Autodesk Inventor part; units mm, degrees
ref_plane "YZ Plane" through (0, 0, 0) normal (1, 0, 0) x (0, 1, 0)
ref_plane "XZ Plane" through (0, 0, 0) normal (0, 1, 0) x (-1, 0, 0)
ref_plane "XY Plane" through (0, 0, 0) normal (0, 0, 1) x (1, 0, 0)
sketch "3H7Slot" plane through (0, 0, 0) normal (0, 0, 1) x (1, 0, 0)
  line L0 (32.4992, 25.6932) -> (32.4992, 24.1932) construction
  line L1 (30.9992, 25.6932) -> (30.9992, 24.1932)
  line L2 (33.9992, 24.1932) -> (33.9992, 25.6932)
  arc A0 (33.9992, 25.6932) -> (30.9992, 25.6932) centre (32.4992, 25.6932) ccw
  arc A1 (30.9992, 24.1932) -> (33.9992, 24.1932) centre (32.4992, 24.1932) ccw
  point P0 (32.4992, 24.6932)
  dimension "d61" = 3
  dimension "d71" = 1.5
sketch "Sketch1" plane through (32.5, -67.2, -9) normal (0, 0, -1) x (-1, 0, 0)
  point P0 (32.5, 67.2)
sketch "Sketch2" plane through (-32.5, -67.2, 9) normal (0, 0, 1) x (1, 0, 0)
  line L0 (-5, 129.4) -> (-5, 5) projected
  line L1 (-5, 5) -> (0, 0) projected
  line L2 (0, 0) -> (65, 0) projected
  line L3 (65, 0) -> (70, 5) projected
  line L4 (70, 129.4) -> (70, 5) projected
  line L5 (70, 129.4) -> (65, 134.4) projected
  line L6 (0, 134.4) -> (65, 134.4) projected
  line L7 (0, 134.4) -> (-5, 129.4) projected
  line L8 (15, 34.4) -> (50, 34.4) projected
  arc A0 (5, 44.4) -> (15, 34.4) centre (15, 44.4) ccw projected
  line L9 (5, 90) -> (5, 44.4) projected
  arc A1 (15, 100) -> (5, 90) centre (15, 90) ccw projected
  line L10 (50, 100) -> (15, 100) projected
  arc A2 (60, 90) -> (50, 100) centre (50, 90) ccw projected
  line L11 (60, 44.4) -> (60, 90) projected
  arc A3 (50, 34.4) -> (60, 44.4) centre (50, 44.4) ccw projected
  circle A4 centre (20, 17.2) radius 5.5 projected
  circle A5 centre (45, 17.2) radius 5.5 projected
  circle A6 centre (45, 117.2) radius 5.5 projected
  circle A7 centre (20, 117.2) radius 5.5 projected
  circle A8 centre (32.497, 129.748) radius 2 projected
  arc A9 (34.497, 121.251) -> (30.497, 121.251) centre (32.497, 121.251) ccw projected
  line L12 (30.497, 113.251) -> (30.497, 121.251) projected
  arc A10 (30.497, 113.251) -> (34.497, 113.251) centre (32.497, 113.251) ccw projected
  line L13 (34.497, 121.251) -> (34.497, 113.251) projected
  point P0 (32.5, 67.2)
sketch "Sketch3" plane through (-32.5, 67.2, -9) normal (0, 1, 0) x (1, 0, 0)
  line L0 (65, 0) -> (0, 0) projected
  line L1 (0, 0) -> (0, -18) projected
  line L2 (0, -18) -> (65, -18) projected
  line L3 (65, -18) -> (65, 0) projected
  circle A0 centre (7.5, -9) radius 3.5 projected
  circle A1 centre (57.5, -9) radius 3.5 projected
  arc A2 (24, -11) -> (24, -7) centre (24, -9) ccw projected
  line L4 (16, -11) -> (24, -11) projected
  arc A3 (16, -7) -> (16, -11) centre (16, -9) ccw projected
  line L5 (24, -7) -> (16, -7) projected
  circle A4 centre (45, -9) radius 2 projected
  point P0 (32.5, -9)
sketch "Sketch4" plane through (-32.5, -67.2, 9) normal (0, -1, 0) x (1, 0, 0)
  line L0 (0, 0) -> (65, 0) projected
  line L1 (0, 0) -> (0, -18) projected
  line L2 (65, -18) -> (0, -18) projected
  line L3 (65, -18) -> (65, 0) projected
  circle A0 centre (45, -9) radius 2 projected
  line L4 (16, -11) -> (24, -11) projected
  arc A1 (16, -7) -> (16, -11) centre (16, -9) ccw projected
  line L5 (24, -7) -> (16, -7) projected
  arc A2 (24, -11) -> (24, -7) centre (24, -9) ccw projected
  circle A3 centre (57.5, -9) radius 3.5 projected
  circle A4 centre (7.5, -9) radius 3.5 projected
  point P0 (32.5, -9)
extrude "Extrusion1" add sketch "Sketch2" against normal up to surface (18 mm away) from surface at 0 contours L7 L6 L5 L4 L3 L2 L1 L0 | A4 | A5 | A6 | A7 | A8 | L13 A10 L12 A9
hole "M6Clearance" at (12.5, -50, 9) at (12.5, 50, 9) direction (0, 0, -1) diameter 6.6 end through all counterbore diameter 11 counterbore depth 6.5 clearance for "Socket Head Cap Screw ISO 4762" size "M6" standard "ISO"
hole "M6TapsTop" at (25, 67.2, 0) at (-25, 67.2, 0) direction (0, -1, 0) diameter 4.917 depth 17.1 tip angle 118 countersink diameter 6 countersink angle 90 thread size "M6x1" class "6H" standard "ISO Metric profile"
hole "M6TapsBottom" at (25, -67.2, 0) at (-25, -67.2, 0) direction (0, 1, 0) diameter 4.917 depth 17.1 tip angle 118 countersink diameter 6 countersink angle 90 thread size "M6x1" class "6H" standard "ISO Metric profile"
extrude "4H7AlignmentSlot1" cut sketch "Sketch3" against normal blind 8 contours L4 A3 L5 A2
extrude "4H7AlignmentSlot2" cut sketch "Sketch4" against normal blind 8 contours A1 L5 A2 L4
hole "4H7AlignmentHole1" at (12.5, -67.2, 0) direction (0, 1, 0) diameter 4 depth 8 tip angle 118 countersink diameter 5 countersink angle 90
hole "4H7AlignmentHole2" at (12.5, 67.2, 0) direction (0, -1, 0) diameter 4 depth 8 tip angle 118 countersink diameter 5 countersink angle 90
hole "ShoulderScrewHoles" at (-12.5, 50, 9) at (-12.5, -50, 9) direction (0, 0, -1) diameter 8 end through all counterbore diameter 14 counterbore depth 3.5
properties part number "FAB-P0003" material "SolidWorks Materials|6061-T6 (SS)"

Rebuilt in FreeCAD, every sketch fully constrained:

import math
import FreeCAD as App
import Part
import Sketcher
from FreeCAD import Vector


def add_polygon(sketch, points):
    """Adds a closed chain of lines whose ends are joined by coincident constraints."""
    first, n = sketch.GeometryCount, len(points)
    for a, b in zip(points, points[1:] + points[:1]):
        sketch.addGeometry(Part.LineSegment(App.Vector(*a, 0), App.Vector(*b, 0)), False)
    for i in range(n):
        sketch.addConstraint(Sketcher.Constraint("Coincident", first + i, 2, first + (i + 1) % n, 1))

doc = App.newDocument("Part")
params = doc.addObject("Spreadsheet::Sheet", "Params")
for row, (alias, value) in enumerate([
    ("sketch1_radius", "10 mm"),
    ("sketch1_width", "65 mm"),
    ("sketch1_width2", "35 mm"),
    ("sketch1_height", "124.4 mm"),
    ("sketch1_height2", "45.6 mm"),
    ("pad1_length", "18 mm"),
    ("sketch2_diameter", "6.6 mm"),
    ("hole_diameter", "6.6 mm"),
    ("hole_cbore_diameter", "11 mm"),
    ("hole_cbore_depth", "6.5 mm"),
    ("hole2_diameter", "4.917 mm"),
    ("hole2_depth", "17.1 mm"),
    ("hole2_csink_diameter", "6 mm"),
    ("hole3_diameter", "4.917 mm"),
    ("hole3_depth", "17.1 mm"),
    ("hole3_csink_diameter", "6 mm"),
    ("sketch5_radius", "2 mm"),
    ("sketch5_width", "8 mm"),
    ("pocket1_length", "8 mm"),
    ("sketch6_radius", "2 mm"),
    ("sketch6_width", "8 mm"),
    ("pocket2_length", "8 mm"),
    ("sketch7_diameter", "4 mm"),
    ("hole4_diameter", "4 mm"),
    ("hole4_depth", "8 mm"),
    ("hole4_csink_diameter", "5 mm"),
    ("sketch8_diameter", "4 mm"),
    ("hole5_diameter", "4 mm"),
    ("hole5_depth", "8 mm"),
    ("hole5_csink_diameter", "5 mm"),
    ("sketch9_diameter", "8 mm"),
    ("hole6_diameter", "8 mm"),
    ("hole6_cbore_diameter", "14 mm"),
    ("hole6_cbore_depth", "3.5 mm"),
], start=1):
    params.set(f"A{row}", alias)
    params.set(f"B{row}", "=" + value)
    params.setAlias(f"B{row}", alias)

body = doc.addObject("PartDesign::Body", "Body")

# Sketch on XY plane
sketch1 = doc.addObject("Sketcher::SketchObject", "Sketch")
body.addObject(sketch1)
sketch1.AttachmentSupport = (doc.XY_Plane, [""])
sketch1.MapMode = "FlatFace"
sketch1.AttachmentOffset = App.Placement(Vector(0, 0, 9), App.Rotation())
add_polygon(sketch1, [(-32.5, 67.2), (-37.5, 62.2), (-37.5, -62.2), (-32.5, -67.2), (32.5, -67.2), (37.5, -62.2), (37.5, 62.2), (32.5, 67.2)])  # lines 0-7
sketch1.addGeometry(Part.LineSegment(Vector(17.5, -32.8, 0), Vector(-17.5, -32.8, 0)), False)  # 8
sketch1.addGeometry(Part.ArcOfCircle(Part.Circle(Vector(-17.5, -22.8, 0), Vector(0, 0, 1), 10), math.radians(180), math.radians(270)), False)  # 9
sketch1.addGeometry(Part.LineSegment(Vector(-27.5, -22.8, 0), Vector(-27.5, 22.8, 0)), False)  # 10
sketch1.addGeometry(Part.ArcOfCircle(Part.Circle(Vector(-17.5, 22.8, 0), Vector(0, 0, 1), 10), math.radians(90), math.radians(180)), False)  # 11
sketch1.addGeometry(Part.LineSegment(Vector(-17.5, 32.8, 0), Vector(17.5, 32.8, 0)), False)  # 12
sketch1.addGeometry(Part.ArcOfCircle(Part.Circle(Vector(17.5, 22.8, 0), Vector(0, 0, 1), 10), math.radians(0), math.radians(90)), False)  # 13
sketch1.addGeometry(Part.LineSegment(Vector(27.5, 22.8, 0), Vector(27.5, -22.8, 0)), False)  # 14
sketch1.addGeometry(Part.ArcOfCircle(Part.Circle(Vector(17.5, -22.8, 0), Vector(0, 0, 1), 10), math.radians(-90), math.radians(0)), False)  # 15
sketch1.addConstraint([
    Sketcher.Constraint("Tangent", 8, 2, 9, 2),
    Sketcher.Constraint("Tangent", 9, 1, 10, 1),
    Sketcher.Constraint("Tangent", 10, 2, 11, 2),
    Sketcher.Constraint("Tangent", 11, 1, 12, 1),
    Sketcher.Constraint("Tangent", 12, 2, 13, 2),
    Sketcher.Constraint("Tangent", 13, 1, 14, 1),
    Sketcher.Constraint("Tangent", 14, 2, 15, 2),
    Sketcher.Constraint("Tangent", 15, 1, 8, 1),
    Sketcher.Constraint("Vertical", 1),
    Sketcher.Constraint("Horizontal", 3),
    Sketcher.Constraint("Vertical", 5),
    Sketcher.Constraint("Horizontal", 7),
    Sketcher.Constraint("Horizontal", 8),
    Sketcher.Constraint("Vertical", 10),
    Sketcher.Constraint("Horizontal", 12),
    Sketcher.Constraint("Vertical", 14),
    Sketcher.Constraint("Equal", 9, 11),
    Sketcher.Constraint("Equal", 11, 13),
    Sketcher.Constraint("Equal", 13, 15),
    Sketcher.Constraint("Symmetric", 9, 3, 13, 3, -1, 1),
    Sketcher.Constraint("Symmetric", 0, 2, 4, 2, -1, 1),
    Sketcher.Constraint("Symmetric", 2, 2, 6, 2, -1, 1),
    Sketcher.Constraint("Perpendicular", 0, 2),
    Sketcher.Constraint("Perpendicular", 2, 4),
    Sketcher.Constraint("Perpendicular", 4, 6),
    Sketcher.Constraint("Horizontal", 1, 2, 4, 2),
    Sketcher.Constraint("Vertical", 3, 2, 6, 2),
    Sketcher.Constraint("Radius", 9, 10.0),
    Sketcher.Constraint("DistanceX", 3, 1, 3, 2, 65.0),
    Sketcher.Constraint("DistanceX", 8, 2, 8, 1, 35.0),
    Sketcher.Constraint("DistanceY", 1, 2, 1, 1, 124.4),
    Sketcher.Constraint("DistanceY", 10, 1, 10, 2, 45.6),
    Sketcher.Constraint("DistanceX", 0, 2, 11, 3, 20.0),
])
sketch1.setExpression("Constraints[35]", "Params.sketch1_radius")
sketch1.setExpression("Constraints[36]", "Params.sketch1_width")
sketch1.setExpression("Constraints[37]", "Params.sketch1_width2")
sketch1.setExpression("Constraints[38]", "Params.sketch1_height")
sketch1.setExpression("Constraints[39]", "Params.sketch1_height2")
pad1 = doc.addObject("PartDesign::Pad", "Pad")
body.addObject(pad1)
pad1.Profile = sketch1
pad1.setExpression("Length", "Params.pad1_length")
pad1.Reversed = True

# Sketch on XY plane
sketch2 = doc.addObject("Sketcher::SketchObject", "Sketch001")
body.addObject(sketch2)
sketch2.AttachmentSupport = (doc.XY_Plane, [""])
sketch2.MapMode = "FlatFace"
sketch2.AttachmentOffset = App.Placement(Vector(0, 0, 9), App.Rotation())
sketch2.addGeometry([
    Part.Circle(Vector(12.5, -50, 0), Vector(0, 0, 1), 3.3),
    Part.Circle(Vector(12.5, 50, 0), Vector(0, 0, 1), 3.3),
], False)
sketch2.addConstraint([
    Sketcher.Constraint("Equal", 0, 1),
    Sketcher.Constraint("Symmetric", 0, 3, 1, 3, -1),
    Sketcher.Constraint("Diameter", 0, 6.6),
    Sketcher.Constraint("DistanceY", 0, 3, -1, 1, 50.0),
    Sketcher.Constraint("DistanceX", -1, 1, 0, 3, 12.5),
])
sketch2.setExpression("Constraints[2]", "Params.sketch2_diameter")
doc.recompute()
hole = doc.addObject("PartDesign::Hole", "Hole")
body.addObject(hole)
hole.Profile = sketch2
hole.ThreadType = "None"
hole.setExpression("Diameter", "Params.hole_diameter")
hole.DepthType = "ThroughAll"
hole.HoleCutType = "Counterbore"
hole.setExpression("HoleCutDiameter", "Params.hole_cbore_diameter")
hole.setExpression("HoleCutDepth", "Params.hole_cbore_depth")

# Sketch on XZ plane
sketch3 = doc.addObject("Sketcher::SketchObject", "Sketch002")
body.addObject(sketch3)
sketch3.AttachmentSupport = (doc.XZ_Plane, [""])
sketch3.MapMode = "FlatFace"
sketch3.AttachmentOffset = App.Placement(Vector(0, 0, -67.2), App.Rotation())
sketch3.addGeometry([
    Part.Circle(Vector(25, 0, 0), Vector(0, 0, 1), 2.4585),
    Part.Circle(Vector(-25, 0, 0), Vector(0, 0, 1), 2.4585),
], False)
sketch3.addConstraint([
    Sketcher.Constraint("Equal", 0, 1),
    Sketcher.Constraint("Symmetric", 0, 3, 1, 3, -1, 1),
    Sketcher.Constraint("PointOnObject", 0, 3, -1),
    Sketcher.Constraint("Diameter", 0, 4.917),
    Sketcher.Constraint("DistanceX", -1, 1, 0, 3, 25.0),
])
doc.recompute()
hole2 = doc.addObject("PartDesign::Hole", "Hole001")
body.addObject(hole2)
hole2.Profile = sketch3
hole2.ThreadType = "None"
hole2.setExpression("Diameter", "Params.hole2_diameter")
hole2.DepthType = "Dimension"
hole2.setExpression("Depth", "Params.hole2_depth")
hole2.DrillPoint = "Angled"
hole2.DrillPointAngle = 118
hole2.HoleCutType = "Countersink"
hole2.setExpression("HoleCutDiameter", "Params.hole2_csink_diameter")
hole2.HoleCutCountersinkAngle = 90
hole2.Reversed = True

# Sketch on XZ plane
sketch4 = doc.addObject("Sketcher::SketchObject", "Sketch003")
body.addObject(sketch4)
sketch4.AttachmentSupport = (doc.XZ_Plane, [""])
sketch4.MapMode = "FlatFace"
sketch4.AttachmentOffset = App.Placement(Vector(0, 0, 67.2), App.Rotation())
sketch4.addGeometry([
    Part.Circle(Vector(25, 0, 0), Vector(0, 0, 1), 2.4585),
    Part.Circle(Vector(-25, 0, 0), Vector(0, 0, 1), 2.4585),
], False)
sketch4.addConstraint([
    Sketcher.Constraint("Equal", 0, 1),
    Sketcher.Constraint("Symmetric", 0, 3, 1, 3, -1, 1),
    Sketcher.Constraint("PointOnObject", 0, 3, -1),
    Sketcher.Constraint("Diameter", 0, 4.917),
    Sketcher.Constraint("DistanceX", -1, 1, 0, 3, 25.0),
])
doc.recompute()
hole3 = doc.addObject("PartDesign::Hole", "Hole002")
body.addObject(hole3)
hole3.Profile = sketch4
hole3.ThreadType = "None"
hole3.setExpression("Diameter", "Params.hole3_diameter")
hole3.DepthType = "Dimension"
hole3.setExpression("Depth", "Params.hole3_depth")
hole3.DrillPoint = "Angled"
hole3.DrillPointAngle = 118
hole3.HoleCutType = "Countersink"
hole3.setExpression("HoleCutDiameter", "Params.hole3_csink_diameter")
hole3.HoleCutCountersinkAngle = 90

# Sketch on XZ plane
sketch5 = doc.addObject("Sketcher::SketchObject", "Sketch004")
body.addObject(sketch5)
sketch5.AttachmentSupport = (doc.XZ_Plane, [""])
sketch5.MapMode = "FlatFace"
sketch5.AttachmentOffset = App.Placement(Vector(0, 0, -67.2), App.Rotation())
sketch5.addGeometry([
    Part.LineSegment(Vector(-16.5, 2, 0), Vector(-8.5, 2, 0)),
    Part.ArcOfCircle(Part.Circle(Vector(-8.5, 0, 0), Vector(0, 0, 1), 2), math.radians(-90), math.radians(90)),
    Part.LineSegment(Vector(-8.5, -2, 0), Vector(-16.5, -2, 0)),
    Part.ArcOfCircle(Part.Circle(Vector(-16.5, 0, 0), Vector(0, 0, 1), 2), math.radians(90), math.radians(270)),
], False)
sketch5.addConstraint([
    Sketcher.Constraint("Tangent", 0, 2, 1, 2),
    Sketcher.Constraint("Tangent", 1, 1, 2, 1),
    Sketcher.Constraint("Tangent", 2, 2, 3, 2),
    Sketcher.Constraint("Tangent", 3, 1, 0, 1),
    Sketcher.Constraint("Horizontal", 0),
    Sketcher.Constraint("Horizontal", 2),
    Sketcher.Constraint("PointOnObject", 1, 3, -1),
    Sketcher.Constraint("Radius", 1, 2.0),
    Sketcher.Constraint("DistanceX", 0, 1, 0, 2, 8.0),
    Sketcher.Constraint("DistanceX", 1, 3, -1, 1, 8.5),
])
sketch5.setExpression("Constraints[7]", "Params.sketch5_radius")
sketch5.setExpression("Constraints[8]", "Params.sketch5_width")
pocket1 = doc.addObject("PartDesign::Pocket", "Pocket")
body.addObject(pocket1)
pocket1.Profile = sketch5
pocket1.setExpression("Length", "Params.pocket1_length")
pocket1.Reversed = True

# Sketch on XZ plane
sketch6 = doc.addObject("Sketcher::SketchObject", "Sketch005")
body.addObject(sketch6)
sketch6.AttachmentSupport = (doc.XZ_Plane, [""])
sketch6.MapMode = "FlatFace"
sketch6.AttachmentOffset = App.Placement(Vector(0, 0, 67.2), App.Rotation())
sketch6.addGeometry([
    Part.ArcOfCircle(Part.Circle(Vector(-16.5, 0, 0), Vector(0, 0, 1), 2), math.radians(90), math.radians(270)),
    Part.LineSegment(Vector(-16.5, -2, 0), Vector(-8.5, -2, 0)),
    Part.ArcOfCircle(Part.Circle(Vector(-8.5, 0, 0), Vector(0, 0, 1), 2), math.radians(-90), math.radians(90)),
    Part.LineSegment(Vector(-8.5, 2, 0), Vector(-16.5, 2, 0)),
], False)
sketch6.addConstraint([
    Sketcher.Constraint("Tangent", 0, 2, 1, 1),
    Sketcher.Constraint("Tangent", 1, 2, 2, 1),
    Sketcher.Constraint("Tangent", 2, 2, 3, 1),
    Sketcher.Constraint("Tangent", 3, 2, 0, 1),
    Sketcher.Constraint("Horizontal", 1),
    Sketcher.Constraint("Horizontal", 3),
    Sketcher.Constraint("PointOnObject", 0, 3, -1),
    Sketcher.Constraint("Radius", 0, 2.0),
    Sketcher.Constraint("DistanceX", 1, 1, 1, 2, 8.0),
    Sketcher.Constraint("DistanceX", 0, 3, -1, 1, 16.5),
])
sketch6.setExpression("Constraints[7]", "Params.sketch6_radius")
sketch6.setExpression("Constraints[8]", "Params.sketch6_width")
pocket2 = doc.addObject("PartDesign::Pocket", "Pocket001")
body.addObject(pocket2)
pocket2.Profile = sketch6
pocket2.setExpression("Length", "Params.pocket2_length")

# Sketch on XZ plane
sketch7 = doc.addObject("Sketcher::SketchObject", "Sketch006")
body.addObject(sketch7)
sketch7.AttachmentSupport = (doc.XZ_Plane, [""])
sketch7.MapMode = "FlatFace"
sketch7.AttachmentOffset = App.Placement(Vector(0, 0, 67.2), App.Rotation())
sketch7.addGeometry(Part.Circle(Vector(12.5, 0, 0), Vector(0, 0, 1), 2), False)
sketch7.addConstraint([
    Sketcher.Constraint("PointOnObject", 0, 3, -1),
    Sketcher.Constraint("Diameter", 0, 4.0),
    Sketcher.Constraint("DistanceX", -1, 1, 0, 3, 12.5),
])
sketch7.setExpression("Constraints[1]", "Params.sketch7_diameter")
doc.recompute()
hole4 = doc.addObject("PartDesign::Hole", "Hole003")
body.addObject(hole4)
hole4.Profile = sketch7
hole4.ThreadType = "None"
hole4.setExpression("Diameter", "Params.hole4_diameter")
hole4.DepthType = "Dimension"
hole4.setExpression("Depth", "Params.hole4_depth")
hole4.DrillPoint = "Angled"
hole4.DrillPointAngle = 118
hole4.HoleCutType = "Countersink"
hole4.setExpression("HoleCutDiameter", "Params.hole4_csink_diameter")
hole4.HoleCutCountersinkAngle = 90

# Sketch on XZ plane
sketch8 = doc.addObject("Sketcher::SketchObject", "Sketch007")
body.addObject(sketch8)
sketch8.AttachmentSupport = (doc.XZ_Plane, [""])
sketch8.MapMode = "FlatFace"
sketch8.AttachmentOffset = App.Placement(Vector(0, 0, -67.2), App.Rotation())
sketch8.addGeometry(Part.Circle(Vector(12.5, 0, 0), Vector(0, 0, 1), 2), False)
sketch8.addConstraint([
    Sketcher.Constraint("PointOnObject", 0, 3, -1),
    Sketcher.Constraint("Diameter", 0, 4.0),
    Sketcher.Constraint("DistanceX", -1, 1, 0, 3, 12.5),
])
sketch8.setExpression("Constraints[1]", "Params.sketch8_diameter")
doc.recompute()
hole5 = doc.addObject("PartDesign::Hole", "Hole004")
body.addObject(hole5)
hole5.Profile = sketch8
hole5.ThreadType = "None"
hole5.setExpression("Diameter", "Params.hole5_diameter")
hole5.DepthType = "Dimension"
hole5.setExpression("Depth", "Params.hole5_depth")
hole5.DrillPoint = "Angled"
hole5.DrillPointAngle = 118
hole5.HoleCutType = "Countersink"
hole5.setExpression("HoleCutDiameter", "Params.hole5_csink_diameter")
hole5.HoleCutCountersinkAngle = 90
hole5.Reversed = True

# Sketch on XY plane
sketch9 = doc.addObject("Sketcher::SketchObject", "Sketch008")
body.addObject(sketch9)
sketch9.AttachmentSupport = (doc.XY_Plane, [""])
sketch9.MapMode = "FlatFace"
sketch9.AttachmentOffset = App.Placement(Vector(0, 0, 9), App.Rotation())
sketch9.addGeometry([
    Part.Circle(Vector(-12.5, 50, 0), Vector(0, 0, 1), 4),
    Part.Circle(Vector(-12.5, -50, 0), Vector(0, 0, 1), 4),
], False)
sketch9.addConstraint([
    Sketcher.Constraint("Equal", 0, 1),
    Sketcher.Constraint("Symmetric", 0, 3, 1, 3, -1),
    Sketcher.Constraint("Diameter", 0, 8.0),
    Sketcher.Constraint("DistanceY", -1, 1, 0, 3, 50.0),
    Sketcher.Constraint("DistanceX", 0, 3, -1, 1, 12.5),
])
sketch9.setExpression("Constraints[2]", "Params.sketch9_diameter")
doc.recompute()
hole6 = doc.addObject("PartDesign::Hole", "Hole005")
body.addObject(hole6)
hole6.Profile = sketch9
hole6.ThreadType = "None"
hole6.setExpression("Diameter", "Params.hole6_diameter")
hole6.DepthType = "ThroughAll"
hole6.HoleCutType = "Counterbore"
hole6.setExpression("HoleCutDiameter", "Params.hole6_cbore_diameter")
hole6.setExpression("HoleCutDepth", "Params.hole6_cbore_depth")

doc.recompute()
